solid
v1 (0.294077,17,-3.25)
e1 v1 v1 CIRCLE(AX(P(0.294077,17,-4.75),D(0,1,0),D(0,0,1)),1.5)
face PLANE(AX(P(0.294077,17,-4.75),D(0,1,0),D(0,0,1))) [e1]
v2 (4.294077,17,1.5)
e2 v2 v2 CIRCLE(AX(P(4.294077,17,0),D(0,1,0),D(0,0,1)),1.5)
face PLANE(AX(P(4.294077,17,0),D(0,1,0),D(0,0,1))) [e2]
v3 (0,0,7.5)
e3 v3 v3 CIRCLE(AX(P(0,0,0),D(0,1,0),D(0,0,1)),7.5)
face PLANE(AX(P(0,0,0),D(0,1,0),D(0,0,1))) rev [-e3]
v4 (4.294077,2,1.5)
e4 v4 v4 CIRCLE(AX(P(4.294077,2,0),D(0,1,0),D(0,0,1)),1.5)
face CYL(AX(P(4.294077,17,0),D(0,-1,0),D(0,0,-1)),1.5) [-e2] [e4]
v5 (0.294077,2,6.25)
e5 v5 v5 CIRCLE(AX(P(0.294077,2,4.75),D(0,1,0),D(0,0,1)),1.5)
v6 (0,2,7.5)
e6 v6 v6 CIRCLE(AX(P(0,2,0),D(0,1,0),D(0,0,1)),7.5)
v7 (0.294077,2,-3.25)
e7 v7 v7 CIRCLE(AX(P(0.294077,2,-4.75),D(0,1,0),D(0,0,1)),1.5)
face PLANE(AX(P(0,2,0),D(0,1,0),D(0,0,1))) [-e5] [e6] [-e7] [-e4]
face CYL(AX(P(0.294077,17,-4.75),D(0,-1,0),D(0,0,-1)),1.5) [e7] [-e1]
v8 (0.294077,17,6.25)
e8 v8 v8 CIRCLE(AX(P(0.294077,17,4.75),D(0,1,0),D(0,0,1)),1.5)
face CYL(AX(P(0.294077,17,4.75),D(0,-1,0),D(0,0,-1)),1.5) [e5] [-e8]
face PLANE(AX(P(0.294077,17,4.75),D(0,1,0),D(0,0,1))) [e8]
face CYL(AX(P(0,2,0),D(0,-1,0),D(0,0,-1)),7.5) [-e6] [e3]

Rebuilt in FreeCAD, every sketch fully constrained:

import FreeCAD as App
import Part
import Sketcher

V = App.Vector
Q = App.Units.Quantity

doc = App.newDocument("Part")
params = doc.addObject("Spreadsheet::Sheet", "Params")
for row, (alias, value) in enumerate([
    ("sketch1_diameter", "15 mm"),
    ("pad1_length", "2 mm"),
    ("sketch2_diameter", "3 mm"),
    ("pad2_length", "15 mm"),
], start=1):
    params.set(f"A{row}", alias)
    params.set(f"B{row}", "=" + value)
    params.setAlias(f"B{row}", alias)

body = doc.addObject("PartDesign::Body", "Body")

sketch1 = body.newObject("Sketcher::SketchObject", "Sketch")
sketch1.AttachmentSupport = (doc.getObject("XZ_Plane"), [""])
sketch1.MapMode = "FlatFace"
sketch1.addGeometry(Part.Circle(V(0, 0, 0), V(0, 0, 1), 7.5), False)
sketch1.addConstraint([
    Sketcher.Constraint("Coincident", 0, 3, -1, 1),
    Sketcher.Constraint("Diameter", 0, Q("15 mm")),
])
sketch1.setExpression("Constraints[1]", "Params.sketch1_diameter")
pad1 = body.newObject("PartDesign::Pad", "Pad")
pad1.Profile = sketch1
pad1.setExpression("Length", "Params.pad1_length")
pad1.Reversed = True

sketch2 = body.newObject("Sketcher::SketchObject", "Sketch001")
sketch2.AttachmentSupport = (doc.getObject("XZ_Plane"), [""])
sketch2.MapMode = "FlatFace"
sketch2.AttachmentOffset = App.Placement(V(0, 0, -2), App.Rotation())
sketch2.addGeometry([
    Part.Circle(V(0.294077, 4.75, 0), V(0, 0, 1), 1.5),
    Part.Circle(V(0.294077, -4.75, 0), V(0, 0, 1), 1.5),
    Part.Circle(V(4.294077, 0, 0), V(0, 0, 1), 1.5),
], False)
sketch2.addConstraint([
    Sketcher.Constraint("Equal", 0, 1),
    Sketcher.Constraint("Equal", 1, 2),
    Sketcher.Constraint("Symmetric", 0, 3, 1, 3, -1),
    Sketcher.Constraint("PointOnObject", 2, 3, -1),
    Sketcher.Constraint("Diameter", 0, Q("3 mm")),
    Sketcher.Constraint("DistanceX", 0, 3, 2, 3, Q("4 mm")),
    Sketcher.Constraint("DistanceY", 1, 3, 0, 3, Q("9.5 mm")),
    Sketcher.Constraint("DistanceX", -1, 1, 0, 3, Q("0.294077 mm")),
])
sketch2.setExpression("Constraints[4]", "Params.sketch2_diameter")
pad2 = body.newObject("PartDesign::Pad", "Pad001")
pad2.Profile = sketch2
pad2.setExpression("Length", "Params.pad2_length")
pad2.Reversed = True

doc.recompute()
